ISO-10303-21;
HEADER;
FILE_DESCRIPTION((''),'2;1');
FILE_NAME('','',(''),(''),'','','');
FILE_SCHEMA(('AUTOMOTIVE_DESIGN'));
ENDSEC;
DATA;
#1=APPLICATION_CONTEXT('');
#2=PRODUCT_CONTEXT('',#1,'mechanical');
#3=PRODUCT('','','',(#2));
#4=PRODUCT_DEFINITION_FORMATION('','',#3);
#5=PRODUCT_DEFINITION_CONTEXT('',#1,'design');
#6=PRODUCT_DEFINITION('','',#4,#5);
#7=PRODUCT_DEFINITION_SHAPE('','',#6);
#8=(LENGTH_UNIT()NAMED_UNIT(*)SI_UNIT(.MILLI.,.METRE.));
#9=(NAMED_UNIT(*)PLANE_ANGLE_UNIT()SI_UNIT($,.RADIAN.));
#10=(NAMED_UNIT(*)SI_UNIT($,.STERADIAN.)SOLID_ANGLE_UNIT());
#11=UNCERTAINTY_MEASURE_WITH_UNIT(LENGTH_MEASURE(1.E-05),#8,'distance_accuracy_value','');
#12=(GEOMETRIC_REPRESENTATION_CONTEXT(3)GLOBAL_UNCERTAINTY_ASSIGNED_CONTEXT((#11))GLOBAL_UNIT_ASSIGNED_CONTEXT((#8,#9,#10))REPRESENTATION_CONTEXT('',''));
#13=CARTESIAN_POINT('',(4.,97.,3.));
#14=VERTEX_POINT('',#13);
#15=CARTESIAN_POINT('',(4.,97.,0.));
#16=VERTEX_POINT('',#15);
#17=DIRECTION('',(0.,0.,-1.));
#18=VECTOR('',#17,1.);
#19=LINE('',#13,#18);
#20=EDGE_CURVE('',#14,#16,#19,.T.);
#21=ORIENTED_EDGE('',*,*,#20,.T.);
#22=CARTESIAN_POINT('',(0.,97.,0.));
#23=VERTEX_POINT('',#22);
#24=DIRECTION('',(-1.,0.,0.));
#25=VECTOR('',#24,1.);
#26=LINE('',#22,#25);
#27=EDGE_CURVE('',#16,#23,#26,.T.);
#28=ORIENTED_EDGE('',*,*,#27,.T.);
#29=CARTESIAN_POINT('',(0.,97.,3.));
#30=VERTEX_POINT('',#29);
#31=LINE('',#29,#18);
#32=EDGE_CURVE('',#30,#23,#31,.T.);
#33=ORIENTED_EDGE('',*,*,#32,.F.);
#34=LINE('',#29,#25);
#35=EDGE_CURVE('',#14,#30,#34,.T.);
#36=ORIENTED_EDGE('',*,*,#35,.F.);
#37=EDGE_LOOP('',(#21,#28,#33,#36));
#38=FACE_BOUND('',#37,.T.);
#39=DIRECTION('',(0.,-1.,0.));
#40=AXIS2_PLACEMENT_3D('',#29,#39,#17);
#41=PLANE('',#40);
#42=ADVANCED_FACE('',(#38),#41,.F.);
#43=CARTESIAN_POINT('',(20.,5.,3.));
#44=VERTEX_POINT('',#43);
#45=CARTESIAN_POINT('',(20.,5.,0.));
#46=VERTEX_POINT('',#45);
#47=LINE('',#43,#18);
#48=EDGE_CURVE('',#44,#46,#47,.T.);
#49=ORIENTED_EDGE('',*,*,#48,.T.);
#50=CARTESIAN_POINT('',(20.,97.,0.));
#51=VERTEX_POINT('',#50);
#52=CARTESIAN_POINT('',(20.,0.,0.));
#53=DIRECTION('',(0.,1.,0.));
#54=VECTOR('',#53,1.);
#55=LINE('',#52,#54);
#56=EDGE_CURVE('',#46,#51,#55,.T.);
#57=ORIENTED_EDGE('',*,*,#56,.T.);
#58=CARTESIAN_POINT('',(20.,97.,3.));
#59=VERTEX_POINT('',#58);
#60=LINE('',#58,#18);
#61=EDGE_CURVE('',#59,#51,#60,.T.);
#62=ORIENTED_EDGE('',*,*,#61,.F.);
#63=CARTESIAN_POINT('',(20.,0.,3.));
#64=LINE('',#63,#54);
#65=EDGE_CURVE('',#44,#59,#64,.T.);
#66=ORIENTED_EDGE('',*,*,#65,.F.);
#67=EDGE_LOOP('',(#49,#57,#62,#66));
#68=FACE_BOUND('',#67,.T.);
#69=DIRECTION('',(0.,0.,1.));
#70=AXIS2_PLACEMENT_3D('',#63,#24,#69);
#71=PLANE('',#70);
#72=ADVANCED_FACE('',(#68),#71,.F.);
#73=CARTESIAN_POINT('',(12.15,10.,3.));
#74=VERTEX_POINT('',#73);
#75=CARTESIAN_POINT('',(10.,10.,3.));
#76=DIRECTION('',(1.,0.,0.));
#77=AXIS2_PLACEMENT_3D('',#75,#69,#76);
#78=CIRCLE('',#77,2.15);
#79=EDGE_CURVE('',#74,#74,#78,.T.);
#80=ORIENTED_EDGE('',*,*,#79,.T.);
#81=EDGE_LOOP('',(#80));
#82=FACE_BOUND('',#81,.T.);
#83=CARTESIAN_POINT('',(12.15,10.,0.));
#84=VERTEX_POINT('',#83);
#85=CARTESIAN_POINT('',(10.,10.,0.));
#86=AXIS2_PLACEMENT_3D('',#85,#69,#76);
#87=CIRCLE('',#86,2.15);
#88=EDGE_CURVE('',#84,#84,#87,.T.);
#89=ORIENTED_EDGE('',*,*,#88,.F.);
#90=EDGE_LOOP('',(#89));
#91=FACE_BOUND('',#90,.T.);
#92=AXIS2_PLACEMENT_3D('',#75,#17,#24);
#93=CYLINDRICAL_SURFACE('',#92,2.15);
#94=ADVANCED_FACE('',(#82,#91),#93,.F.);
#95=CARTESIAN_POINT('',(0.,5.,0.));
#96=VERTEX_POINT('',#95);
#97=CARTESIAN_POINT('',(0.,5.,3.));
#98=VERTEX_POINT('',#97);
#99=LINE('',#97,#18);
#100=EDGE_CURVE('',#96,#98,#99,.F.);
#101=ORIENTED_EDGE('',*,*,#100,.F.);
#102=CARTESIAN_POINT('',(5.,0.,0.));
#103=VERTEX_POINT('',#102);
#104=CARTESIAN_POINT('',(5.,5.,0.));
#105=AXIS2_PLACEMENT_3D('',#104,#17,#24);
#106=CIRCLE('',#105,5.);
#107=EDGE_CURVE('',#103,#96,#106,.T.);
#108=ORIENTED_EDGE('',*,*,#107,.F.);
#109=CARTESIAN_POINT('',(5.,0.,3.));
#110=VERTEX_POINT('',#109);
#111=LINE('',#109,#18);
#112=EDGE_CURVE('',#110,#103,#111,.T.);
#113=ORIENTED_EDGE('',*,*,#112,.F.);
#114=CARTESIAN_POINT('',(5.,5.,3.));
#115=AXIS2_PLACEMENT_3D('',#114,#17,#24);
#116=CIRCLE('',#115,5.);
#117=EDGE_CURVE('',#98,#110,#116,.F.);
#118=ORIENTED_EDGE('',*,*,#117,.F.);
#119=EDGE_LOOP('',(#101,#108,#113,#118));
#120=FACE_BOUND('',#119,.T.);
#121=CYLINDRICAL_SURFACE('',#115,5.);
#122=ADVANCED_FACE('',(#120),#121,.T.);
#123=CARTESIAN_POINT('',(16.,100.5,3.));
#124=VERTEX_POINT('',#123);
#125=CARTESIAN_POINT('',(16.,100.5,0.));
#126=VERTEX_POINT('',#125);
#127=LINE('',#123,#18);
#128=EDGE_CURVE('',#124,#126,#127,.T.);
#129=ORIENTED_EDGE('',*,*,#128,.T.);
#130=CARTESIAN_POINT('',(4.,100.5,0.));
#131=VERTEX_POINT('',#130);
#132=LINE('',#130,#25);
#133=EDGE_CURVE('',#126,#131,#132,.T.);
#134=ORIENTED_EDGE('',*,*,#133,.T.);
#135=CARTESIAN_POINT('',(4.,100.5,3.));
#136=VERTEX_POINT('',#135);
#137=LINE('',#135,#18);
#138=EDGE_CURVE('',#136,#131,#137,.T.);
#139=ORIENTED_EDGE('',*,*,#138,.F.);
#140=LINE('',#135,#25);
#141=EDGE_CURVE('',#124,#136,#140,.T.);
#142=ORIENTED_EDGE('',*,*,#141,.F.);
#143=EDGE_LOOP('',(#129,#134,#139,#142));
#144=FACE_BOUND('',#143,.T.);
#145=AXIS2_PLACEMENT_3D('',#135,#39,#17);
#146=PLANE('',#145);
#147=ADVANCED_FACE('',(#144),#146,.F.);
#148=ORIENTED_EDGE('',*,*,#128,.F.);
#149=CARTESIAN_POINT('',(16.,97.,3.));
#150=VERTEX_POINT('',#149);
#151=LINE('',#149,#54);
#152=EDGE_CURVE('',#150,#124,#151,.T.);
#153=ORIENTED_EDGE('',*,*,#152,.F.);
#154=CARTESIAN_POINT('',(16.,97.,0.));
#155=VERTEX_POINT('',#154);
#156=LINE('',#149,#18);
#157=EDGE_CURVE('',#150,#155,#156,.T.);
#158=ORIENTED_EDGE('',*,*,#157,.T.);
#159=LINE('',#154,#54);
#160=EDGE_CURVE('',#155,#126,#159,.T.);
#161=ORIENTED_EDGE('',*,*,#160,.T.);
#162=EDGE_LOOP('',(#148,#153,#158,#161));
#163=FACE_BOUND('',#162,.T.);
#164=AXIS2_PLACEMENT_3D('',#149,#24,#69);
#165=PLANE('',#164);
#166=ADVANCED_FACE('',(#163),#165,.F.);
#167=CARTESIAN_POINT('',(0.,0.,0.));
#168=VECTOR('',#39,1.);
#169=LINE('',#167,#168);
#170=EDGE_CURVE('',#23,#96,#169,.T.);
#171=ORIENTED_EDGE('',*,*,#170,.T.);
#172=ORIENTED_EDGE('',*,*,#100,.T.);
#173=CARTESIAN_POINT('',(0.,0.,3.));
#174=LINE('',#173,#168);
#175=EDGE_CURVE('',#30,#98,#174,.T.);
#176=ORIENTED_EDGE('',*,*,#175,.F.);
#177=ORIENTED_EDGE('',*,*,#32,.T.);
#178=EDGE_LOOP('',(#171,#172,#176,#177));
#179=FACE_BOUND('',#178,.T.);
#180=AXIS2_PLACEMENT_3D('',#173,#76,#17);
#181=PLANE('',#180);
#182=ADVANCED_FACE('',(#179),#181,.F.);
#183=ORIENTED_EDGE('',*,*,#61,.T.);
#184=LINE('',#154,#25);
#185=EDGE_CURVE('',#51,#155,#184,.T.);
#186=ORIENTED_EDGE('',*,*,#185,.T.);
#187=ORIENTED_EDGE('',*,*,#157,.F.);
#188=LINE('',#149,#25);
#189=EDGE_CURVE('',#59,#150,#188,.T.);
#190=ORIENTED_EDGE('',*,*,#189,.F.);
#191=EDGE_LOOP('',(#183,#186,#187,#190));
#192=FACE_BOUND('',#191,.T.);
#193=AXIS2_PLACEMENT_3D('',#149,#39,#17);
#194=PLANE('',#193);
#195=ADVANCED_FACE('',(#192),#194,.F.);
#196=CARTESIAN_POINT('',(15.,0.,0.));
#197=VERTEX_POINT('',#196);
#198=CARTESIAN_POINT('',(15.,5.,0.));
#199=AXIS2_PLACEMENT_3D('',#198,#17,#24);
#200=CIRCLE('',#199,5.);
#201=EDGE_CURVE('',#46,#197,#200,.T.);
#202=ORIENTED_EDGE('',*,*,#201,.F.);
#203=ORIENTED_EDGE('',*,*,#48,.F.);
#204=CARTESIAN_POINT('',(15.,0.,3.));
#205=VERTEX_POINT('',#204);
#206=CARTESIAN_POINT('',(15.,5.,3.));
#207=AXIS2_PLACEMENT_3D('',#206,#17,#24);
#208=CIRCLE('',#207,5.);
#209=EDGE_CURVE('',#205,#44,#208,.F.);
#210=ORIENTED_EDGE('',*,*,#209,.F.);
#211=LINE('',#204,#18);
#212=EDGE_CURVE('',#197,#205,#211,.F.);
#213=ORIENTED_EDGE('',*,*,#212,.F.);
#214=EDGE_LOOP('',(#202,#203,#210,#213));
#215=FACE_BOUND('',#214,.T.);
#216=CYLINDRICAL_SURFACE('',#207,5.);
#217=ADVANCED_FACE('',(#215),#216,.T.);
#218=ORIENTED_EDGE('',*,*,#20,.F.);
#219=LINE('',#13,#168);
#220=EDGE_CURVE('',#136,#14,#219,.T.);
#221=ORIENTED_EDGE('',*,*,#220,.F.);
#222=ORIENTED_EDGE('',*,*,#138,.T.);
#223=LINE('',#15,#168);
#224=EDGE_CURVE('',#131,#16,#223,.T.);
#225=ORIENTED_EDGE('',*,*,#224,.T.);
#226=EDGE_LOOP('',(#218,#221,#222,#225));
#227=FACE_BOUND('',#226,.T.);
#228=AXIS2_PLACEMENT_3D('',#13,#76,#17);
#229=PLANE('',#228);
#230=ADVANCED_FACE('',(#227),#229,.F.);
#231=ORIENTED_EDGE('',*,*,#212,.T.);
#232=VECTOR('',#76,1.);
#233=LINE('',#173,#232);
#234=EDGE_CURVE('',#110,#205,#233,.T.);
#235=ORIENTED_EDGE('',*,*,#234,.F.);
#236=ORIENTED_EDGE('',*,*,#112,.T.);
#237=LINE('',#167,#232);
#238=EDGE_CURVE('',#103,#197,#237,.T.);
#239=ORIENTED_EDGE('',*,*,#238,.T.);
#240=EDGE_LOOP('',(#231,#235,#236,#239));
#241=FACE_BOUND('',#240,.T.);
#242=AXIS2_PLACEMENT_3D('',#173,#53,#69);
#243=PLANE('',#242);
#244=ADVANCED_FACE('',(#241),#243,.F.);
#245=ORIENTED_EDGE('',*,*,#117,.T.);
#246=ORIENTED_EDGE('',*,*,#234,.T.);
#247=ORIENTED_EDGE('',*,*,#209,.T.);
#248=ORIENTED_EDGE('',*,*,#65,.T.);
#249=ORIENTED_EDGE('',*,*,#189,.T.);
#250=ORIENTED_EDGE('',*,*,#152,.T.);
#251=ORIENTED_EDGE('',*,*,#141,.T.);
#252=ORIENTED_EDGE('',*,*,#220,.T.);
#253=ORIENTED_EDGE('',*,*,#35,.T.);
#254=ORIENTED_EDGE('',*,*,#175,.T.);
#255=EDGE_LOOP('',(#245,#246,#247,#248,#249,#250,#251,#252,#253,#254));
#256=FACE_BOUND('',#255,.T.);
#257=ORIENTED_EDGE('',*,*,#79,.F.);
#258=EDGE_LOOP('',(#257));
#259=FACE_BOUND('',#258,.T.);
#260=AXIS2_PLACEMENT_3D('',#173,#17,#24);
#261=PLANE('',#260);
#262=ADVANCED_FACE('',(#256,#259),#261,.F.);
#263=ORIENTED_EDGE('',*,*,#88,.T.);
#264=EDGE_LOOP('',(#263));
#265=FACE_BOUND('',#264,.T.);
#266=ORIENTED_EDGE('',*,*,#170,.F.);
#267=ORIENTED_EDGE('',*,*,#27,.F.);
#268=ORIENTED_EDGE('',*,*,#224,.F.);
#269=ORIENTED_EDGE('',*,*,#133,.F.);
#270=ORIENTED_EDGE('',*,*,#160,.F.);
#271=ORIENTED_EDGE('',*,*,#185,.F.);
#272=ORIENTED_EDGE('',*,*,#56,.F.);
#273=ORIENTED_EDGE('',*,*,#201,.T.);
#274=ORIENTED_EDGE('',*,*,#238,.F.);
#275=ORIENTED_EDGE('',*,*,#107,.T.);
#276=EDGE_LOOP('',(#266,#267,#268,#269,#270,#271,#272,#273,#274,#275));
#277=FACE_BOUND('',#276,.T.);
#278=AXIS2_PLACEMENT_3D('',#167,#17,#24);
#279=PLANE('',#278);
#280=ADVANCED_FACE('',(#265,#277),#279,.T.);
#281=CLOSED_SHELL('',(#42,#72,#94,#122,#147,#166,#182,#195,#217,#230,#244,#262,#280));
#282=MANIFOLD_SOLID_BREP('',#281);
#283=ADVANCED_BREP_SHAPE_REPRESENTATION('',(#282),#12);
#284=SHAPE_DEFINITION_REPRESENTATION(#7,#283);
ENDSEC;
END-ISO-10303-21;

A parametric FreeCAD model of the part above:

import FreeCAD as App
import Part
import Sketcher
Q = App.Units.Quantity


def edges_at(feature, points):
    """Names of the edges that pass closest to the given points."""
    edges = feature.Shape.Edges
    near = lambda p: min(range(len(edges)), key=lambda i: edges[i].distToShape(Part.Vertex(*p))[0])
    return sorted({f"Edge{near(p) + 1}" for p in points})


def add_polygon(sketch, points):
    """Adds a closed chain of lines whose ends are joined by coincident constraints."""
    first, n = sketch.GeometryCount, len(points)
    for a, b in zip(points, points[1:] + points[:1]):
        sketch.addGeometry(Part.LineSegment(App.Vector(*a, 0), App.Vector(*b, 0)), False)
    for i in range(n):
        sketch.addConstraint(Sketcher.Constraint("Coincident", first + i, 2, first + (i + 1) % n, 1))

doc = App.newDocument("Part")
params = doc.addObject("Spreadsheet::Sheet", "Params")
for row, (alias, value) in enumerate([
    ("sketch1_diameter", "4.3 mm"),
    ("sketch1_width", "4 mm"),
    ("sketch1_width2", "12 mm"),
    ("sketch1_height", "97 mm"),
    ("sketch1_height2", "3.5 mm"),
    ("pad1_length", "3 mm"),
    ("fillet_radius", "5 mm"),
], start=1):
    params.set(f"A{row}", alias)
    params.set(f"B{row}", "=" + value)
    params.setAlias(f"B{row}", alias)

body = doc.addObject("PartDesign::Body", "Body")

# Sketch on XY plane
sketch1 = body.newObject("Sketcher::SketchObject", "Sketch")
sketch1.AttachmentSupport = (doc.getObject("XY_Plane"), [""])
sketch1.MapMode = "FlatFace"
add_polygon(sketch1, [(20, 97), (16, 97), (16, 100.5), (4, 100.5), (4, 97), (0, 97), (0, 0), (20, 0)])  # lines 0-7
sketch1.addGeometry(Part.Circle(App.Vector(10, 10, 0), App.Vector(0, 0, 1), 2.1), False)  # 8
sketch1.addConstraint([
    Sketcher.Constraint("Horizontal", 0),
    Sketcher.Constraint("Vertical", 1),
    Sketcher.Constraint("Horizontal", 2),
    Sketcher.Constraint("Vertical", 3),
    Sketcher.Constraint("Horizontal", 4),
    Sketcher.Constraint("Vertical", 5),
    Sketcher.Constraint("Horizontal", 6),
    Sketcher.Constraint("Vertical", 7),
    Sketcher.Constraint("Coincident", 5, 2, -1, 1),
    Sketcher.Constraint("Horizontal", 0, 2, 3, 2),
    Sketcher.Constraint("Equal", 0, 4),
    Sketcher.Constraint("Diameter", 8, Q("4.3 mm")),
    Sketcher.Constraint("DistanceX", 0, 2, 0, 1, Q("4 mm")),
    Sketcher.Constraint("DistanceX", 2, 2, 2, 1, Q("12 mm")),
    Sketcher.Constraint("DistanceY", 5, 2, 5, 1, Q("97 mm")),
    Sketcher.Constraint("DistanceY", 1, 1, 1, 2, Q("3.5 mm")),
    Sketcher.Constraint("DistanceX", -1, 1, 8, 3, Q("10 mm")),
    Sketcher.Constraint("DistanceY", -1, 1, 8, 3, Q("10 mm")),
])
sketch1.setExpression("Constraints[19]", "Params.sketch1_diameter")
sketch1.setExpression("Constraints[20]", "Params.sketch1_width")
sketch1.setExpression("Constraints[21]", "Params.sketch1_width2")
sketch1.setExpression("Constraints[22]", "Params.sketch1_height")
sketch1.setExpression("Constraints[23]", "Params.sketch1_height2")
pad1 = body.newObject("PartDesign::Pad", "Pad")
pad1.Profile = sketch1
pad1.setExpression("Length", "Params.pad1_length")
doc.recompute()

fillet = body.newObject("PartDesign::Fillet", "Fillet")
fillet.Base = (pad1, edges_at(pad1, [(20, 0, 1.5), (0, 0, 1.5)]))
fillet.setExpression("Radius", "Params.fillet_radius")

doc.recompute()
